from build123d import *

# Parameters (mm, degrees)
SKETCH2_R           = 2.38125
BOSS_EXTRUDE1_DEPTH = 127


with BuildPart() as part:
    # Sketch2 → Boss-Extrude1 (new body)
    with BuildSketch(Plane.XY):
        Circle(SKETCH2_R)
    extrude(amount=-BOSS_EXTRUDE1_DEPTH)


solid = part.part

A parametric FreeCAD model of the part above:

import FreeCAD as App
import Part
import Sketcher
from FreeCAD import Vector
Q = App.Units.Quantity

doc = App.newDocument("Part")
body = doc.addObject("PartDesign::Body", "Body")

sketch1 = body.newObject("Sketcher::SketchObject", "Sketch")
sketch1.AttachmentSupport = (doc.getObject("XY_Plane"), [""])
sketch1.MapMode = "FlatFace"
sketch1.addGeometry(Part.Circle(Vector(0, 0, 0), Vector(0, 0, 1), 2.4), False)
sketch1.addConstraint([
    Sketcher.Constraint("Coincident", 0, 3, -1, 1),
    Sketcher.Constraint("Diameter", 0, Q("0.1875 in")),
])
pad1 = body.newObject("PartDesign::Pad", "Pad")
pad1.Profile = sketch1
pad1.Length = Q("5 in")
pad1.Reversed = True

doc.recompute()
